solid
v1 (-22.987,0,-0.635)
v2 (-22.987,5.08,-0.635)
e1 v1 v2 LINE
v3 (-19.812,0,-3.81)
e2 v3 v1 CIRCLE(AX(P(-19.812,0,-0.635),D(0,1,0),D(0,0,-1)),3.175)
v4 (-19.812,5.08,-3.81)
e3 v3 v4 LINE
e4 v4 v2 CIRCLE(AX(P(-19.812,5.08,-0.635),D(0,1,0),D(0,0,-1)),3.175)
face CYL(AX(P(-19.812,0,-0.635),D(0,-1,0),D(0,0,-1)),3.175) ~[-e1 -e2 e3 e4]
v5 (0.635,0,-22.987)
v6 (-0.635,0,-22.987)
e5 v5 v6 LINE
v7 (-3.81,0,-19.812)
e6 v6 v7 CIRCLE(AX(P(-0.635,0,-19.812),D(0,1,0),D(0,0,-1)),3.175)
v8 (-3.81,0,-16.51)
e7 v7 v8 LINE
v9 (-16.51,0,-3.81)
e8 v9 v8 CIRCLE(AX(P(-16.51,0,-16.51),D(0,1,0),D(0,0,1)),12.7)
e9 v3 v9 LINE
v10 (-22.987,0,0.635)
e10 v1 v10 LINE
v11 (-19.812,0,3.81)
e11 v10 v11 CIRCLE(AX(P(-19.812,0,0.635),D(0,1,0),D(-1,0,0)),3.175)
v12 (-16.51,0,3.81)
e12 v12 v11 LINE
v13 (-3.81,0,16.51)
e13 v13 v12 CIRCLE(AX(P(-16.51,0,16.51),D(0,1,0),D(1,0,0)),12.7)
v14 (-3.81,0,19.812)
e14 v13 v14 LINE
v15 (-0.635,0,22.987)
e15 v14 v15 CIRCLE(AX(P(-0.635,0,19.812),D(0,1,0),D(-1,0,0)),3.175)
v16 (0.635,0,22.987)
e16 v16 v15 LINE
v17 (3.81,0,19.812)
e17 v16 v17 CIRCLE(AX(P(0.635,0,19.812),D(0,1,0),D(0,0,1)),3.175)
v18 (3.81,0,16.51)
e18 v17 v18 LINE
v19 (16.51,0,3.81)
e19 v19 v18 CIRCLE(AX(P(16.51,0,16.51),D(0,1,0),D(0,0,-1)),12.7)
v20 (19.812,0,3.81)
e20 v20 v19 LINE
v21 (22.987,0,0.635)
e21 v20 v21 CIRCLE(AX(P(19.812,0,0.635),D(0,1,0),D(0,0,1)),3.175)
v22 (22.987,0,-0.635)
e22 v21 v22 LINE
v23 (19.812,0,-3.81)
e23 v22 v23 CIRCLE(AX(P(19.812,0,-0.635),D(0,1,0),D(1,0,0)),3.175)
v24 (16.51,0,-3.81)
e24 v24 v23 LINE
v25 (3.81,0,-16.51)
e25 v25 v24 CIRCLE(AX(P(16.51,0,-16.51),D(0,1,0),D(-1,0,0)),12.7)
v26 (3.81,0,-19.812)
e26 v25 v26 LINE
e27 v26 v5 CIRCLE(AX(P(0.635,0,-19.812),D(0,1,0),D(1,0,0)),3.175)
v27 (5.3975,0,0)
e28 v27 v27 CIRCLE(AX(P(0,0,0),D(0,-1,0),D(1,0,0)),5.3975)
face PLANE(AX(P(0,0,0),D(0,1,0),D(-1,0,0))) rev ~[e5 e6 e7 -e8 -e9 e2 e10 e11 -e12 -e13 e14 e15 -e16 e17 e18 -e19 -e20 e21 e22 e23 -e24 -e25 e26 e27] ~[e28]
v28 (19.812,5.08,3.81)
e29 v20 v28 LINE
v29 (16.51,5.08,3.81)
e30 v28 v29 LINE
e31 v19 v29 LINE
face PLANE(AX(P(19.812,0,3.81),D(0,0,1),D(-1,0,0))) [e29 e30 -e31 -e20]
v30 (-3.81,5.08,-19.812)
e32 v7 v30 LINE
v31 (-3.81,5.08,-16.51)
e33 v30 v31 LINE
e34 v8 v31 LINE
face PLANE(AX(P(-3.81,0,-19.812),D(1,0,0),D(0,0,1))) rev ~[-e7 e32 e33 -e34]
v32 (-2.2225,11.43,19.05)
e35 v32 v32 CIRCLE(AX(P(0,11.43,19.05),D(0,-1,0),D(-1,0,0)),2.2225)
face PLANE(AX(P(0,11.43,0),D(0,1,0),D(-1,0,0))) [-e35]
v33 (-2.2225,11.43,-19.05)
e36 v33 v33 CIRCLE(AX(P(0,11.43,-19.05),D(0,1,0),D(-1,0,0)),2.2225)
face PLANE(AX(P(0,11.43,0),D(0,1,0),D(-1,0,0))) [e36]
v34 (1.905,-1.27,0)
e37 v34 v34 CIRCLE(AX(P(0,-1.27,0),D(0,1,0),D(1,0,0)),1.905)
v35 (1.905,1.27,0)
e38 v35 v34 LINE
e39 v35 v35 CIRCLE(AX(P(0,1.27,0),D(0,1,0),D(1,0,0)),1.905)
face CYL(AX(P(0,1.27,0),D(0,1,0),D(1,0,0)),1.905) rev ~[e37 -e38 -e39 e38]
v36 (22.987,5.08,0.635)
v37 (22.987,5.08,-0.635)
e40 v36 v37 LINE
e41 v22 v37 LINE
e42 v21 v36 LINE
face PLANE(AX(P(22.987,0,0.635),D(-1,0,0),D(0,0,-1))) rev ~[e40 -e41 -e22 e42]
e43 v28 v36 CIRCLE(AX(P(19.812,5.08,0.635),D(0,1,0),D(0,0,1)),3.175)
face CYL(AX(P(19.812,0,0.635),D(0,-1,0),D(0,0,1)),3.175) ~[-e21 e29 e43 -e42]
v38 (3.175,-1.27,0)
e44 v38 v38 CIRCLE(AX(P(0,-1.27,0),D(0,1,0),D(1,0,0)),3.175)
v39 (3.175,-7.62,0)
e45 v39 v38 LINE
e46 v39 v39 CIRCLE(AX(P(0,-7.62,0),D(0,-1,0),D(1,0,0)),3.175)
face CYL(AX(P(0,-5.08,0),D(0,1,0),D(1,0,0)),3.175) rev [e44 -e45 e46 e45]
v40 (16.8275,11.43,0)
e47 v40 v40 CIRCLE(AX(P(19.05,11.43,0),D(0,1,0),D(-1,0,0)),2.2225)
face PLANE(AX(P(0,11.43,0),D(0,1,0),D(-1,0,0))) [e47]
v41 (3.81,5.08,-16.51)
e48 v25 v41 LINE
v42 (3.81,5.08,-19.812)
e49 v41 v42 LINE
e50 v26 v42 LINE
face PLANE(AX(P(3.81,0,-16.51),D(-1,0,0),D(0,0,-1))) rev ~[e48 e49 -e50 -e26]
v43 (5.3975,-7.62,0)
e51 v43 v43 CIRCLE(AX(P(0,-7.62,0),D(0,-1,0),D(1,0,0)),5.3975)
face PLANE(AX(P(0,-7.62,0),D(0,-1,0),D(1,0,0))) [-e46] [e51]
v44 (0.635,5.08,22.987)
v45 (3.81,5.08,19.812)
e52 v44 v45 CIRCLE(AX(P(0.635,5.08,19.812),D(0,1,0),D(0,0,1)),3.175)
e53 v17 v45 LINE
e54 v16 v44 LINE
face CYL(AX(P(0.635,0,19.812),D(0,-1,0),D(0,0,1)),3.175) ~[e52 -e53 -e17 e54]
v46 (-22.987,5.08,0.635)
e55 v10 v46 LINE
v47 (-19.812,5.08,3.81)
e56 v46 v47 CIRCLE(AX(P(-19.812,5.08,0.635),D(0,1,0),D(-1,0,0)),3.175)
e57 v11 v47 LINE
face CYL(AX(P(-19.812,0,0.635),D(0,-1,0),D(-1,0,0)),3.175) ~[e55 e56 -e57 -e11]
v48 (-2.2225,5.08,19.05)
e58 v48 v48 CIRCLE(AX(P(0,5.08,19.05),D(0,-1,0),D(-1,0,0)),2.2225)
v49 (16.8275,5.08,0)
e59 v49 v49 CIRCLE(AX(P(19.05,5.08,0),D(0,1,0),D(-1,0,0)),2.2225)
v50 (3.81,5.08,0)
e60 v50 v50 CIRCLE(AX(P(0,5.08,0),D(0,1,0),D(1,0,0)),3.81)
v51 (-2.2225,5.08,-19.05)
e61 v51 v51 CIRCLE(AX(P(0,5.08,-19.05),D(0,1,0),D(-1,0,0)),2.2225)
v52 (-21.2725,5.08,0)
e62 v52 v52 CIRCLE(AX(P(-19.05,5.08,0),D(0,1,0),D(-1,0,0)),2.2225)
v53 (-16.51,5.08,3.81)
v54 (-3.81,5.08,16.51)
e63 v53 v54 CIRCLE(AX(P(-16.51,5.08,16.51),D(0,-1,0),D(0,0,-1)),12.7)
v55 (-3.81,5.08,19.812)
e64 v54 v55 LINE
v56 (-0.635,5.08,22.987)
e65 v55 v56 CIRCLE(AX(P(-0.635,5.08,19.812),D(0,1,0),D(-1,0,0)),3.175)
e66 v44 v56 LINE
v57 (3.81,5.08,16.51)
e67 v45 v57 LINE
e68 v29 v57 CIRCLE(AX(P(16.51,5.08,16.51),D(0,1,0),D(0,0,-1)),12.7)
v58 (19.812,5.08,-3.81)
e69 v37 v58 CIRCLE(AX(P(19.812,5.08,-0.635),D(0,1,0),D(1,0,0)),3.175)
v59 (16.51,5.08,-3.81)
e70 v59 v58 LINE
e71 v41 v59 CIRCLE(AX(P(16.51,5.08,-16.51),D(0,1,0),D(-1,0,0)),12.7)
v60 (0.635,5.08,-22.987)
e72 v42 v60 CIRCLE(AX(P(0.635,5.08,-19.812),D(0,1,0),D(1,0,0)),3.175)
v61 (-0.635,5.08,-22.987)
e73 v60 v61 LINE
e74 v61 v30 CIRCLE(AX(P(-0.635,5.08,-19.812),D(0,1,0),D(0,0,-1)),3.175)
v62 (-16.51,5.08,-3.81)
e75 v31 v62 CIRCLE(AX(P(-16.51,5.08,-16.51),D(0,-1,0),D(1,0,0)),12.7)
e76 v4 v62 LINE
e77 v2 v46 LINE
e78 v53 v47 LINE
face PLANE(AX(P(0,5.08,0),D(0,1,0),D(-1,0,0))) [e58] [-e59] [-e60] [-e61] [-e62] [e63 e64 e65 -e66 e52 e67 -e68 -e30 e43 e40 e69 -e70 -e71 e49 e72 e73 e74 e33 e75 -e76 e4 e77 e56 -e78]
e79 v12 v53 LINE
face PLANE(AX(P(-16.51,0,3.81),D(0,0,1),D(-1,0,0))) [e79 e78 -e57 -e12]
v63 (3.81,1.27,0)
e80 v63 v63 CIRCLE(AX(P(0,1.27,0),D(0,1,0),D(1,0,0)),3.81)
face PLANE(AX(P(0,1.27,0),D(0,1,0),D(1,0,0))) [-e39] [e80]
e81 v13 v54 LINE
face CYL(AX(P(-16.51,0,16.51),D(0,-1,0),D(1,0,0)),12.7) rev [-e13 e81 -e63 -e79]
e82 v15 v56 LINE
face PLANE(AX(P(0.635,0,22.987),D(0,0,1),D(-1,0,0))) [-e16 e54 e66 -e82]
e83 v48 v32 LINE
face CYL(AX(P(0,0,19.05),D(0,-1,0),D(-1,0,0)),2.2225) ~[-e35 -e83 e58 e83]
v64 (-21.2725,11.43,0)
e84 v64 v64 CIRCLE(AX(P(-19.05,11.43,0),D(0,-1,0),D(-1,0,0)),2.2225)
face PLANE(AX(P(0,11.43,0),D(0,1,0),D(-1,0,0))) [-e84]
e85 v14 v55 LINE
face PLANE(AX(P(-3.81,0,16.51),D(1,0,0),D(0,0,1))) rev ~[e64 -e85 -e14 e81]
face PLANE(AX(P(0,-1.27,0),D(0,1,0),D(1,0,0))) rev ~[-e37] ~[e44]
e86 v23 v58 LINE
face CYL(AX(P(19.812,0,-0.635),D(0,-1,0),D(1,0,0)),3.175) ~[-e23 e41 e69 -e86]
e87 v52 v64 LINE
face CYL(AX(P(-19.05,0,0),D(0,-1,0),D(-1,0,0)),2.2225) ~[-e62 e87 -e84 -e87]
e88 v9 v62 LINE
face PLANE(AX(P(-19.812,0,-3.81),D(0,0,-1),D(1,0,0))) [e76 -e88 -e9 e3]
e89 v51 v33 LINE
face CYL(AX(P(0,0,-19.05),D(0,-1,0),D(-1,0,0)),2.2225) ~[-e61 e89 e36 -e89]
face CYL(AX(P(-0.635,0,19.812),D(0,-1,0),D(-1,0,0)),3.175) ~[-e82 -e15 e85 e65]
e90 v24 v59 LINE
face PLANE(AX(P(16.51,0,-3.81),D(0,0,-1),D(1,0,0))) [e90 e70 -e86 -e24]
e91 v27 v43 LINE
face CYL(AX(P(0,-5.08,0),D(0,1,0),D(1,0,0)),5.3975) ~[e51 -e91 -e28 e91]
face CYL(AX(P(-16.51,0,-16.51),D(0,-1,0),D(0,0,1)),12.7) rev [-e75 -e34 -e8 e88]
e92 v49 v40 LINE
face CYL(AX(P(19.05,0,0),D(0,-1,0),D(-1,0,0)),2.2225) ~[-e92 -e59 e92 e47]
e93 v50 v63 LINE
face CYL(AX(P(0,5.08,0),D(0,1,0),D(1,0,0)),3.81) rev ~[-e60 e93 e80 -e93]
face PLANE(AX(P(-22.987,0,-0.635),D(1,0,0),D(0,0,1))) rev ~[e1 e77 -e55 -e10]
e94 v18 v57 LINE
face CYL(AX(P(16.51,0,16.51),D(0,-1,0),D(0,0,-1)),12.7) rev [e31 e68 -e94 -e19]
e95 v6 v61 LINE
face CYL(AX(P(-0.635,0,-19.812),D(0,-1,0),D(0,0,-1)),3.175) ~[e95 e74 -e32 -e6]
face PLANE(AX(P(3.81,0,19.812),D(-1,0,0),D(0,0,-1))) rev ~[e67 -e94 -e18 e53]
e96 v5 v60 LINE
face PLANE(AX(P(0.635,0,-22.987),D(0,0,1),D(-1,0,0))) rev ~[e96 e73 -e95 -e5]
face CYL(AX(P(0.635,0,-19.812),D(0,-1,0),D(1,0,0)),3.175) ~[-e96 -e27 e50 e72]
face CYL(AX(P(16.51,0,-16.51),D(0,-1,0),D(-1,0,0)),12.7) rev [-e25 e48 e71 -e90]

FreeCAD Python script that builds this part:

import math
import FreeCAD as App
import Part
import Sketcher
from FreeCAD import Vector
Q = App.Units.Quantity

doc = App.newDocument("Part")
body = doc.addObject("PartDesign::Body", "Body")

# Sketch on XZ plane
sketch1 = body.newObject("Sketcher::SketchObject", "Sketch")
sketch1.AttachmentSupport = (doc.getObject("XZ_Plane"), [""])
sketch1.MapMode = "FlatFace"
sketch1.addGeometry(Part.ArcOfCircle(Part.Circle(Vector(-0.6, -19.8, 0), Vector(0, 0, 1), 3.2), math.radians(180), math.radians(270)), False)
sketch1.addGeometry(Part.LineSegment(Vector(-3.8, -19.8, 0), Vector(-3.8, -16.5, 0)), False)
sketch1.addGeometry(Part.ArcOfCircle(Part.Circle(Vector(-16.5, -16.5, 0), Vector(0, 0, 1), 12.7), math.radians(0), math.radians(90)), False)
sketch1.addGeometry(Part.LineSegment(Vector(-16.5, -3.8, 0), Vector(-19.8, -3.8, 0)), False)
sketch1.addGeometry(Part.ArcOfCircle(Part.Circle(Vector(-19.8, -0.6, 0), Vector(0, 0, 1), 3.2), math.radians(180), math.radians(270)), False)
sketch1.addGeometry(Part.LineSegment(Vector(-23, -0.6, 0), Vector(-23, 0.6, 0)), False)
sketch1.addGeometry(Part.ArcOfCircle(Part.Circle(Vector(-19.8, 0.6, 0), Vector(0, 0, 1), 3.2), math.radians(90), math.radians(180)), False)
sketch1.addGeometry(Part.LineSegment(Vector(-19.8, 3.8, 0), Vector(-16.5, 3.8, 0)), False)
sketch1.addGeometry(Part.ArcOfCircle(Part.Circle(Vector(-16.5, 16.5, 0), Vector(0, 0, 1), 12.7), math.radians(-90), math.radians(0)), False)
sketch1.addGeometry(Part.LineSegment(Vector(-3.8, 16.5, 0), Vector(-3.8, 19.8, 0)), False)
sketch1.addGeometry(Part.ArcOfCircle(Part.Circle(Vector(-0.6, 19.8, 0), Vector(0, 0, 1), 3.2), math.radians(90), math.radians(180)), False)
sketch1.addGeometry(Part.LineSegment(Vector(-0.6, 23, 0), Vector(0.6, 23, 0)), False)
sketch1.addGeometry(Part.ArcOfCircle(Part.Circle(Vector(0.6, 19.8, 0), Vector(0, 0, 1), 3.2), math.radians(0), math.radians(90)), False)
sketch1.addGeometry(Part.LineSegment(Vector(3.8, 19.8, 0), Vector(3.8, 16.5, 0)), False)
sketch1.addGeometry(Part.ArcOfCircle(Part.Circle(Vector(16.5, 16.5, 0), Vector(0, 0, 1), 12.7), math.radians(180), math.radians(270)), False)
sketch1.addGeometry(Part.LineSegment(Vector(16.5, 3.8, 0), Vector(19.8, 3.8, 0)), False)
sketch1.addGeometry(Part.ArcOfCircle(Part.Circle(Vector(19.8, 0.6, 0), Vector(0, 0, 1), 3.2), math.radians(0), math.radians(90)), False)
sketch1.addGeometry(Part.LineSegment(Vector(23, 0.6, 0), Vector(23, -0.6, 0)), False)
sketch1.addGeometry(Part.ArcOfCircle(Part.Circle(Vector(19.8, -0.6, 0), Vector(0, 0, 1), 3.2), math.radians(-90), math.radians(0)), False)
sketch1.addGeometry(Part.LineSegment(Vector(19.8, -3.8, 0), Vector(16.5, -3.8, 0)), False)
sketch1.addGeometry(Part.ArcOfCircle(Part.Circle(Vector(16.5, -16.5, 0), Vector(0, 0, 1), 12.7), math.radians(90), math.radians(180)), False)
sketch1.addGeometry(Part.LineSegment(Vector(3.8, -16.5, 0), Vector(3.8, -19.8, 0)), False)
sketch1.addGeometry(Part.ArcOfCircle(Part.Circle(Vector(0.6, -19.8, 0), Vector(0, 0, 1), 3.2), math.radians(-90), math.radians(0)), False)
sketch1.addGeometry(Part.LineSegment(Vector(0.6, -23, 0), Vector(-0.6, -23, 0)), False)
sketch1.addGeometry(Part.Circle(Vector(0, -19.1, 0), Vector(0, 0, 1), 2.2), False)
sketch1.addGeometry(Part.Circle(Vector(19.1, 0, 0), Vector(0, 0, 1), 2.2), False)
sketch1.addGeometry(Part.Circle(Vector(0, 19.1, 0), Vector(0, 0, 1), 2.2), False)
sketch1.addGeometry(Part.Circle(Vector(-19.1, 0, 0), Vector(0, 0, 1), 2.2), False)
sketch1.addConstraint(Sketcher.Constraint("Tangent", 0, 1, 1, 1))
sketch1.addConstraint(Sketcher.Constraint("Tangent", 1, 2, 2, 1))
sketch1.addConstraint(Sketcher.Constraint("Tangent", 2, 2, 3, 1))
sketch1.addConstraint(Sketcher.Constraint("Tangent", 3, 2, 4, 2))
sketch1.addConstraint(Sketcher.Constraint("Tangent", 4, 1, 5, 1))
sketch1.addConstraint(Sketcher.Constraint("Tangent", 5, 2, 6, 2))
sketch1.addConstraint(Sketcher.Constraint("Tangent", 6, 1, 7, 1))
sketch1.addConstraint(Sketcher.Constraint("Tangent", 7, 2, 8, 1))
sketch1.addConstraint(Sketcher.Constraint("Tangent", 8, 2, 9, 1))
sketch1.addConstraint(Sketcher.Constraint("Tangent", 9, 2, 10, 2))
sketch1.addConstraint(Sketcher.Constraint("Tangent", 10, 1, 11, 1))
sketch1.addConstraint(Sketcher.Constraint("Tangent", 11, 2, 12, 2))
sketch1.addConstraint(Sketcher.Constraint("Tangent", 12, 1, 13, 1))
sketch1.addConstraint(Sketcher.Constraint("Tangent", 13, 2, 14, 1))
sketch1.addConstraint(Sketcher.Constraint("Tangent", 14, 2, 15, 1))
sketch1.addConstraint(Sketcher.Constraint("Tangent", 15, 2, 16, 2))
sketch1.addConstraint(Sketcher.Constraint("Tangent", 16, 1, 17, 1))
sketch1.addConstraint(Sketcher.Constraint("Tangent", 17, 2, 18, 2))
sketch1.addConstraint(Sketcher.Constraint("Tangent", 18, 1, 19, 1))
sketch1.addConstraint(Sketcher.Constraint("Tangent", 19, 2, 20, 1))
sketch1.addConstraint(Sketcher.Constraint("Tangent", 20, 2, 21, 1))
sketch1.addConstraint(Sketcher.Constraint("Tangent", 21, 2, 22, 2))
sketch1.addConstraint(Sketcher.Constraint("Tangent", 22, 1, 23, 1))
sketch1.addConstraint(Sketcher.Constraint("Tangent", 23, 2, 0, 2))
sketch1.addConstraint(Sketcher.Constraint("Vertical", 1))
sketch1.addConstraint(Sketcher.Constraint("Horizontal", 3))
sketch1.addConstraint(Sketcher.Constraint("Vertical", 5))
sketch1.addConstraint(Sketcher.Constraint("Horizontal", 7))
sketch1.addConstraint(Sketcher.Constraint("Vertical", 9))
sketch1.addConstraint(Sketcher.Constraint("Horizontal", 11))
sketch1.addConstraint(Sketcher.Constraint("Vertical", 13))
sketch1.addConstraint(Sketcher.Constraint("Horizontal", 15))
sketch1.addConstraint(Sketcher.Constraint("Vertical", 17))
sketch1.addConstraint(Sketcher.Constraint("Horizontal", 19))
sketch1.addConstraint(Sketcher.Constraint("Vertical", 21))
sketch1.addConstraint(Sketcher.Constraint("Horizontal", 23))
sketch1.addConstraint(Sketcher.Constraint("Equal", 0, 4))
sketch1.addConstraint(Sketcher.Constraint("Equal", 4, 6))
sketch1.addConstraint(Sketcher.Constraint("Equal", 2, 8))
sketch1.addConstraint(Sketcher.Constraint("Equal", 6, 10))
sketch1.addConstraint(Sketcher.Constraint("Equal", 10, 12))
sketch1.addConstraint(Sketcher.Constraint("Equal", 8, 14))
sketch1.addConstraint(Sketcher.Constraint("Equal", 12, 16))
sketch1.addConstraint(Sketcher.Constraint("Equal", 16, 18))
sketch1.addConstraint(Sketcher.Constraint("Equal", 14, 20))
sketch1.addConstraint(Sketcher.Constraint("Equal", 18, 22))
sketch1.addConstraint(Sketcher.Constraint("Equal", 24, 25))
sketch1.addConstraint(Sketcher.Constraint("Equal", 25, 26))
sketch1.addConstraint(Sketcher.Constraint("Equal", 26, 27))
sketch1.addConstraint(Sketcher.Constraint("Symmetric", 0, 3, 12, 3, -1, 1))
sketch1.addConstraint(Sketcher.Constraint("Symmetric", 4, 3, 16, 3, -1, 1))
sketch1.addConstraint(Sketcher.Constraint("Symmetric", 8, 3, 20, 3, -1, 1))
sketch1.addConstraint(Sketcher.Constraint("Symmetric", 24, 3, 26, 3, -1, 1))
sketch1.addConstraint(Sketcher.Constraint("Symmetric", 25, 3, 27, 3, -1, 1))
sketch1.addConstraint(Sketcher.Constraint("Symmetric", 8, 3, 14, 3, -2))
sketch1.addConstraint(Sketcher.Constraint("PointOnObject", 24, 3, -2))
sketch1.addConstraint(Sketcher.Constraint("PointOnObject", 25, 3, -1))
sketch1.addConstraint(Sketcher.Constraint("Equal", 19, 1))
sketch1.addConstraint(Sketcher.Constraint("Equal", 23, 5))
sketch1.addConstraint(Sketcher.Constraint("Diameter", 24, Q("0.175 in")))
sketch1.addConstraint(Sketcher.Constraint("Radius", 0, Q("0.125 in")))
sketch1.addConstraint(Sketcher.Constraint("Radius", 2, Q("0.5 in")))
sketch1.addConstraint(Sketcher.Constraint("DistanceX", 0, 1, 22, 3, Q("0.175 in")))
sketch1.addConstraint(Sketcher.Constraint("DistanceX", 3, 2, 3, 1, Q("0.13 in")))
sketch1.addConstraint(Sketcher.Constraint("DistanceY", 24, 3, 2, 3, Q("0.1 in")))
sketch1.addConstraint(Sketcher.Constraint("DistanceX", 14, 3, 25, 3, Q("0.1 in")))
pad1 = body.newObject("PartDesign::Pad", "Pad")
pad1.Profile = sketch1
pad1.Length = Q("0.2 in")
pad1.Reversed = True

# Sketch on XZ plane
sketch2 = body.newObject("Sketcher::SketchObject", "Sketch001")
sketch2.AttachmentSupport = (doc.getObject("XZ_Plane"), [""])
sketch2.MapMode = "FlatFace"
sketch2.addGeometry(Part.Circle(Vector(0, 19.1, 0), Vector(0, 0, 1), 2.2), False)
sketch2.addGeometry(Part.Circle(Vector(19.1, 0, 0), Vector(0, 0, 1), 2.2), False)
sketch2.addGeometry(Part.Circle(Vector(0, -19.1, 0), Vector(0, 0, 1), 2.2), False)
sketch2.addGeometry(Part.ArcOfCircle(Part.Circle(Vector(-19.1, 0, 0), Vector(0, 0, 1), 2.2), math.radians(180), math.radians(360)), False)
sketch2.addGeometry(Part.LineSegment(Vector(-21.3, 0, 0), Vector(-16.8, 0, 0)), False)
sketch2.addConstraint(Sketcher.Constraint("Coincident", 3, 1, 4, 1))
sketch2.addConstraint(Sketcher.Constraint("Coincident", 4, 2, 3, 2))
sketch2.addConstraint(Sketcher.Constraint("Horizontal", 4))
sketch2.addConstraint(Sketcher.Constraint("Equal", 0, 1))
sketch2.addConstraint(Sketcher.Constraint("Equal", 1, 2))
sketch2.addConstraint(Sketcher.Constraint("Equal", 2, 3))
sketch2.addConstraint(Sketcher.Constraint("Symmetric", 0, 3, 2, 3, -1, 1))
sketch2.addConstraint(Sketcher.Constraint("Symmetric", 1, 3, 3, 3, -1, 1))
sketch2.addConstraint(Sketcher.Constraint("PointOnObject", 0, 3, -2))
sketch2.addConstraint(Sketcher.Constraint("PointOnObject", 1, 3, -1))
sketch2.addConstraint(Sketcher.Constraint("PointOnObject", 3, 1, -1))
sketch2.addConstraint(Sketcher.Constraint("Diameter", 0, Q("0.175 in")))
sketch2.addConstraint(Sketcher.Constraint("DistanceY", 2, 3, 0, 3, Q("1.5 in")))
sketch2.addConstraint(Sketcher.Constraint("DistanceX", 3, 3, 1, 3, Q("1.5 in")))
pad2 = body.newObject("PartDesign::Pad", "Pad001")
pad2.Profile = sketch2
pad2.Length = Q("0.45 in")
pad2.Reversed = True

# Sketch on XZ plane
sketch3 = body.newObject("Sketcher::SketchObject", "Sketch002")
sketch3.AttachmentSupport = (doc.getObject("XZ_Plane"), [""])
sketch3.MapMode = "FlatFace"
sketch3.addGeometry(Part.LineSegment(Vector(-16.8, 0, 0), Vector(-21.3, 0, 0)), False)
sketch3.addGeometry(Part.ArcOfCircle(Part.Circle(Vector(-19.1, 0, 0), Vector(0, 0, 1), 2.2), math.radians(0), math.radians(180)), False)
sketch3.addConstraint(Sketcher.Constraint("Coincident", 0, 1, 1, 1))
sketch3.addConstraint(Sketcher.Constraint("Coincident", 1, 2, 0, 2))
sketch3.addConstraint(Sketcher.Constraint("Horizontal", 0))
sketch3.addConstraint(Sketcher.Constraint("PointOnObject", 1, 3, -1))
sketch3.addConstraint(Sketcher.Constraint("PointOnObject", 0, 1, -1))
sketch3.addConstraint(Sketcher.Constraint("Radius", 1, Q("0.0875 in")))
sketch3.addConstraint(Sketcher.Constraint("DistanceX", 1, 3, -1, 1, Q("0.75 in")))
pad3 = body.newObject("PartDesign::Pad", "Pad002")
pad3.Profile = sketch3
pad3.Length = Q("0.45 in")
pad3.Reversed = True

# Sketch on XZ plane
sketch4 = body.newObject("Sketcher::SketchObject", "Sketch003")
sketch4.AttachmentSupport = (doc.getObject("XZ_Plane"), [""])
sketch4.MapMode = "FlatFace"
sketch4.AttachmentOffset = App.Placement(Vector(0, 0, -0.2 * 25.4), App.Rotation())
sketch4.addGeometry(Part.Circle(Vector(0, 0, 0), Vector(0, 0, 1), 2.9), False)
sketch4.addConstraint(Sketcher.Constraint("Coincident", 0, 3, -1, 1))
sketch4.addConstraint(Sketcher.Constraint("Diameter", 0, Q("0.225 in")))
pocket1 = body.newObject("PartDesign::Pocket", "Pocket")
pocket1.Profile = sketch4
pocket1.Length = Q("0.45 in")
pocket1.Reversed = True

# Sketch on XZ plane
sketch5 = body.newObject("Sketcher::SketchObject", "Sketch004")
sketch5.AttachmentSupport = (doc.getObject("XZ_Plane"), [""])
sketch5.MapMode = "FlatFace"
sketch5.addGeometry(Part.Circle(Vector(0, 0, 0), Vector(0, 0, 1), 5.4), False)
sketch5.addGeometry(Part.Circle(Vector(0, 0, 0), Vector(0, 0, 1), 2.9), False)
sketch5.addConstraint(Sketcher.Constraint("Coincident", 0, 3, -1, 1))
sketch5.addConstraint(Sketcher.Constraint("Coincident", 1, 3, -1, 1))
sketch5.addConstraint(Sketcher.Constraint("Diameter", 1, Q("0.225 in")))
sketch5.addConstraint(Sketcher.Constraint("Diameter", 0, Q("0.425 in")))
pad4 = body.newObject("PartDesign::Pad", "Pad003")
pad4.Profile = sketch5
pad4.Length = Q("0.2 in")

# Sketch on XZ plane
sketch6 = body.newObject("Sketcher::SketchObject", "Sketch005")
sketch6.AttachmentSupport = (doc.getObject("XZ_Plane"), [""])
sketch6.MapMode = "FlatFace"
sketch6.AttachmentOffset = App.Placement(Vector(0, 0, -0.2 * 25.4), App.Rotation())
sketch6.addGeometry(Part.Circle(Vector(0, 0, 0), Vector(0, 0, 1), 3.8), False)
sketch6.addConstraint(Sketcher.Constraint("Coincident", 0, 3, -1, 1))
sketch6.addConstraint(Sketcher.Constraint("Diameter", 0, Q("0.3 in")))
pocket2 = body.newObject("PartDesign::Pocket", "Pocket001")
pocket2.Profile = sketch6
pocket2.Length = Q("0.15 in")
pocket2.Reversed = True

# Sketch on XZ plane
sketch7 = body.newObject("Sketcher::SketchObject", "Sketch006")
sketch7.AttachmentSupport = (doc.getObject("XZ_Plane"), [""])
sketch7.MapMode = "FlatFace"
sketch7.AttachmentOffset = App.Placement(Vector(0, 0, -0.05 * 25.4), App.Rotation())
sketch7.addGeometry(Part.Circle(Vector(0, 0, 0), Vector(0, 0, 1), 3.2), False)
sketch7.addConstraint(Sketcher.Constraint("Coincident", 0, 3, -1, 1))
sketch7.addConstraint(Sketcher.Constraint("Diameter", 0, Q("0.25 in")))
pocket3 = body.newObject("PartDesign::Pocket", "Pocket002")
pocket3.Profile = sketch7
pocket3.Length = Q("2 in")
pocket3.Reversed = True

# Sketch on XZ plane
sketch8 = body.newObject("Sketcher::SketchObject", "Sketch007")
sketch8.AttachmentSupport = (doc.getObject("XZ_Plane"), [""])
sketch8.MapMode = "FlatFace"
sketch8.AttachmentOffset = App.Placement(Vector(0, 0, -0.05 * 25.4), App.Rotation())
sketch8.addGeometry(Part.Circle(Vector(0, 0, 0), Vector(0, 0, 1), 3.2), False)
sketch8.addGeometry(Part.Circle(Vector(0, 0, 0), Vector(0, 0, 1), 1.9), False)
sketch8.addConstraint(Sketcher.Constraint("Coincident", 0, 3, -1, 1))
sketch8.addConstraint(Sketcher.Constraint("Coincident", 1, 3, -1, 1))
sketch8.addConstraint(Sketcher.Constraint("Diameter", 1, Q("0.15 in")))
sketch8.addConstraint(Sketcher.Constraint("Diameter", 0, Q("0.25 in")))
pad5 = body.newObject("PartDesign::Pad", "Pad004")
pad5.Profile = sketch8
pad5.Length = Q("0.1 in")

# Sketch on XZ plane
sketch9 = body.newObject("Sketcher::SketchObject", "Sketch008")
sketch9.AttachmentSupport = (doc.getObject("XZ_Plane"), [""])
sketch9.MapMode = "FlatFace"
sketch9.AttachmentOffset = App.Placement(Vector(0, 0, 0.2 * 25.4), App.Rotation())
sketch9.addGeometry(Part.Circle(Vector(0, 0, 0), Vector(0, 0, 1), 5.4), False)
sketch9.addGeometry(Part.Circle(Vector(0, 0, 0), Vector(0, 0, 1), 3.2), False)
sketch9.addConstraint(Sketcher.Constraint("Coincident", 0, 3, -1, 1))
sketch9.addConstraint(Sketcher.Constraint("Coincident", 1, 3, -1, 1))
sketch9.addConstraint(Sketcher.Constraint("Diameter", 1, Q("0.25 in")))
sketch9.addConstraint(Sketcher.Constraint("Diameter", 0, Q("0.425 in")))
pad6 = body.newObject("PartDesign::Pad", "Pad005")
pad6.Profile = sketch9
pad6.Length = Q("0.1 in")

doc.recompute()
